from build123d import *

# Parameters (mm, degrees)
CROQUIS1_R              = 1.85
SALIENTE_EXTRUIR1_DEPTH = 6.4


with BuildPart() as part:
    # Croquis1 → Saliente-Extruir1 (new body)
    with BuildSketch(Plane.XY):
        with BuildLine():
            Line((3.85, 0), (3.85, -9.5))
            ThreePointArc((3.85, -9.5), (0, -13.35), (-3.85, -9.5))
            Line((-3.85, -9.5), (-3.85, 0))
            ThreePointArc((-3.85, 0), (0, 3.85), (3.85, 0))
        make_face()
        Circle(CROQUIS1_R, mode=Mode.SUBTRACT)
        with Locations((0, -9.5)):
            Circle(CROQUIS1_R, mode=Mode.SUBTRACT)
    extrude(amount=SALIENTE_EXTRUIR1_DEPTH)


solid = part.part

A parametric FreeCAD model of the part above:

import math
import FreeCAD as App
import Part
import Sketcher
from FreeCAD import Vector

doc = App.newDocument("Part")
body = doc.addObject("PartDesign::Body", "Body")

sketch1 = doc.addObject("Sketcher::SketchObject", "Sketch")
body.addObject(sketch1)
sketch1.AttachmentSupport = (doc.XY_Plane, [""])
sketch1.MapMode = "FlatFace"
sketch1.addGeometry([
    Part.LineSegment(Vector(3.85, -9.5, 0), Vector(3.85, 0, 0)),
    Part.ArcOfCircle(Part.Circle(Vector(0, 0, 0), Vector(0, 0, 1), 3.85), math.radians(0), math.radians(180)),
    Part.LineSegment(Vector(-3.85, 0, 0), Vector(-3.85, -9.5, 0)),
    Part.ArcOfCircle(Part.Circle(Vector(0, -9.5, 0), Vector(0, 0, 1), 3.85), math.radians(180), math.radians(360)),
    Part.Circle(Vector(0, -9.5, 0), Vector(0, 0, 1), 1.85),
    Part.Circle(Vector(0, 0, 0), Vector(0, 0, 1), 1.85),
], False)
sketch1.addConstraint([
    Sketcher.Constraint("Tangent", 0, 2, 1, 1),
    Sketcher.Constraint("Tangent", 1, 2, 2, 1),
    Sketcher.Constraint("Tangent", 2, 2, 3, 1),
    Sketcher.Constraint("Tangent", 3, 2, 0, 1),
    Sketcher.Constraint("Vertical", 0),
    Sketcher.Constraint("Vertical", 2),
    Sketcher.Constraint("Coincident", 1, 3, -1, 1),
    Sketcher.Constraint("Coincident", 5, 3, -1, 1),
    Sketcher.Constraint("Coincident", 4, 3, 3, 3),
    Sketcher.Constraint("Equal", 4, 5),
    Sketcher.Constraint("Diameter", 4, 3.7),
    Sketcher.Constraint("Radius", 1, 3.85),
    Sketcher.Constraint("DistanceY", 0, 1, 0, 2, 9.5),
])
pad1 = doc.addObject("PartDesign::Pad", "Pad")
body.addObject(pad1)
pad1.Profile = sketch1
pad1.Length = 6.4

doc.recompute()
